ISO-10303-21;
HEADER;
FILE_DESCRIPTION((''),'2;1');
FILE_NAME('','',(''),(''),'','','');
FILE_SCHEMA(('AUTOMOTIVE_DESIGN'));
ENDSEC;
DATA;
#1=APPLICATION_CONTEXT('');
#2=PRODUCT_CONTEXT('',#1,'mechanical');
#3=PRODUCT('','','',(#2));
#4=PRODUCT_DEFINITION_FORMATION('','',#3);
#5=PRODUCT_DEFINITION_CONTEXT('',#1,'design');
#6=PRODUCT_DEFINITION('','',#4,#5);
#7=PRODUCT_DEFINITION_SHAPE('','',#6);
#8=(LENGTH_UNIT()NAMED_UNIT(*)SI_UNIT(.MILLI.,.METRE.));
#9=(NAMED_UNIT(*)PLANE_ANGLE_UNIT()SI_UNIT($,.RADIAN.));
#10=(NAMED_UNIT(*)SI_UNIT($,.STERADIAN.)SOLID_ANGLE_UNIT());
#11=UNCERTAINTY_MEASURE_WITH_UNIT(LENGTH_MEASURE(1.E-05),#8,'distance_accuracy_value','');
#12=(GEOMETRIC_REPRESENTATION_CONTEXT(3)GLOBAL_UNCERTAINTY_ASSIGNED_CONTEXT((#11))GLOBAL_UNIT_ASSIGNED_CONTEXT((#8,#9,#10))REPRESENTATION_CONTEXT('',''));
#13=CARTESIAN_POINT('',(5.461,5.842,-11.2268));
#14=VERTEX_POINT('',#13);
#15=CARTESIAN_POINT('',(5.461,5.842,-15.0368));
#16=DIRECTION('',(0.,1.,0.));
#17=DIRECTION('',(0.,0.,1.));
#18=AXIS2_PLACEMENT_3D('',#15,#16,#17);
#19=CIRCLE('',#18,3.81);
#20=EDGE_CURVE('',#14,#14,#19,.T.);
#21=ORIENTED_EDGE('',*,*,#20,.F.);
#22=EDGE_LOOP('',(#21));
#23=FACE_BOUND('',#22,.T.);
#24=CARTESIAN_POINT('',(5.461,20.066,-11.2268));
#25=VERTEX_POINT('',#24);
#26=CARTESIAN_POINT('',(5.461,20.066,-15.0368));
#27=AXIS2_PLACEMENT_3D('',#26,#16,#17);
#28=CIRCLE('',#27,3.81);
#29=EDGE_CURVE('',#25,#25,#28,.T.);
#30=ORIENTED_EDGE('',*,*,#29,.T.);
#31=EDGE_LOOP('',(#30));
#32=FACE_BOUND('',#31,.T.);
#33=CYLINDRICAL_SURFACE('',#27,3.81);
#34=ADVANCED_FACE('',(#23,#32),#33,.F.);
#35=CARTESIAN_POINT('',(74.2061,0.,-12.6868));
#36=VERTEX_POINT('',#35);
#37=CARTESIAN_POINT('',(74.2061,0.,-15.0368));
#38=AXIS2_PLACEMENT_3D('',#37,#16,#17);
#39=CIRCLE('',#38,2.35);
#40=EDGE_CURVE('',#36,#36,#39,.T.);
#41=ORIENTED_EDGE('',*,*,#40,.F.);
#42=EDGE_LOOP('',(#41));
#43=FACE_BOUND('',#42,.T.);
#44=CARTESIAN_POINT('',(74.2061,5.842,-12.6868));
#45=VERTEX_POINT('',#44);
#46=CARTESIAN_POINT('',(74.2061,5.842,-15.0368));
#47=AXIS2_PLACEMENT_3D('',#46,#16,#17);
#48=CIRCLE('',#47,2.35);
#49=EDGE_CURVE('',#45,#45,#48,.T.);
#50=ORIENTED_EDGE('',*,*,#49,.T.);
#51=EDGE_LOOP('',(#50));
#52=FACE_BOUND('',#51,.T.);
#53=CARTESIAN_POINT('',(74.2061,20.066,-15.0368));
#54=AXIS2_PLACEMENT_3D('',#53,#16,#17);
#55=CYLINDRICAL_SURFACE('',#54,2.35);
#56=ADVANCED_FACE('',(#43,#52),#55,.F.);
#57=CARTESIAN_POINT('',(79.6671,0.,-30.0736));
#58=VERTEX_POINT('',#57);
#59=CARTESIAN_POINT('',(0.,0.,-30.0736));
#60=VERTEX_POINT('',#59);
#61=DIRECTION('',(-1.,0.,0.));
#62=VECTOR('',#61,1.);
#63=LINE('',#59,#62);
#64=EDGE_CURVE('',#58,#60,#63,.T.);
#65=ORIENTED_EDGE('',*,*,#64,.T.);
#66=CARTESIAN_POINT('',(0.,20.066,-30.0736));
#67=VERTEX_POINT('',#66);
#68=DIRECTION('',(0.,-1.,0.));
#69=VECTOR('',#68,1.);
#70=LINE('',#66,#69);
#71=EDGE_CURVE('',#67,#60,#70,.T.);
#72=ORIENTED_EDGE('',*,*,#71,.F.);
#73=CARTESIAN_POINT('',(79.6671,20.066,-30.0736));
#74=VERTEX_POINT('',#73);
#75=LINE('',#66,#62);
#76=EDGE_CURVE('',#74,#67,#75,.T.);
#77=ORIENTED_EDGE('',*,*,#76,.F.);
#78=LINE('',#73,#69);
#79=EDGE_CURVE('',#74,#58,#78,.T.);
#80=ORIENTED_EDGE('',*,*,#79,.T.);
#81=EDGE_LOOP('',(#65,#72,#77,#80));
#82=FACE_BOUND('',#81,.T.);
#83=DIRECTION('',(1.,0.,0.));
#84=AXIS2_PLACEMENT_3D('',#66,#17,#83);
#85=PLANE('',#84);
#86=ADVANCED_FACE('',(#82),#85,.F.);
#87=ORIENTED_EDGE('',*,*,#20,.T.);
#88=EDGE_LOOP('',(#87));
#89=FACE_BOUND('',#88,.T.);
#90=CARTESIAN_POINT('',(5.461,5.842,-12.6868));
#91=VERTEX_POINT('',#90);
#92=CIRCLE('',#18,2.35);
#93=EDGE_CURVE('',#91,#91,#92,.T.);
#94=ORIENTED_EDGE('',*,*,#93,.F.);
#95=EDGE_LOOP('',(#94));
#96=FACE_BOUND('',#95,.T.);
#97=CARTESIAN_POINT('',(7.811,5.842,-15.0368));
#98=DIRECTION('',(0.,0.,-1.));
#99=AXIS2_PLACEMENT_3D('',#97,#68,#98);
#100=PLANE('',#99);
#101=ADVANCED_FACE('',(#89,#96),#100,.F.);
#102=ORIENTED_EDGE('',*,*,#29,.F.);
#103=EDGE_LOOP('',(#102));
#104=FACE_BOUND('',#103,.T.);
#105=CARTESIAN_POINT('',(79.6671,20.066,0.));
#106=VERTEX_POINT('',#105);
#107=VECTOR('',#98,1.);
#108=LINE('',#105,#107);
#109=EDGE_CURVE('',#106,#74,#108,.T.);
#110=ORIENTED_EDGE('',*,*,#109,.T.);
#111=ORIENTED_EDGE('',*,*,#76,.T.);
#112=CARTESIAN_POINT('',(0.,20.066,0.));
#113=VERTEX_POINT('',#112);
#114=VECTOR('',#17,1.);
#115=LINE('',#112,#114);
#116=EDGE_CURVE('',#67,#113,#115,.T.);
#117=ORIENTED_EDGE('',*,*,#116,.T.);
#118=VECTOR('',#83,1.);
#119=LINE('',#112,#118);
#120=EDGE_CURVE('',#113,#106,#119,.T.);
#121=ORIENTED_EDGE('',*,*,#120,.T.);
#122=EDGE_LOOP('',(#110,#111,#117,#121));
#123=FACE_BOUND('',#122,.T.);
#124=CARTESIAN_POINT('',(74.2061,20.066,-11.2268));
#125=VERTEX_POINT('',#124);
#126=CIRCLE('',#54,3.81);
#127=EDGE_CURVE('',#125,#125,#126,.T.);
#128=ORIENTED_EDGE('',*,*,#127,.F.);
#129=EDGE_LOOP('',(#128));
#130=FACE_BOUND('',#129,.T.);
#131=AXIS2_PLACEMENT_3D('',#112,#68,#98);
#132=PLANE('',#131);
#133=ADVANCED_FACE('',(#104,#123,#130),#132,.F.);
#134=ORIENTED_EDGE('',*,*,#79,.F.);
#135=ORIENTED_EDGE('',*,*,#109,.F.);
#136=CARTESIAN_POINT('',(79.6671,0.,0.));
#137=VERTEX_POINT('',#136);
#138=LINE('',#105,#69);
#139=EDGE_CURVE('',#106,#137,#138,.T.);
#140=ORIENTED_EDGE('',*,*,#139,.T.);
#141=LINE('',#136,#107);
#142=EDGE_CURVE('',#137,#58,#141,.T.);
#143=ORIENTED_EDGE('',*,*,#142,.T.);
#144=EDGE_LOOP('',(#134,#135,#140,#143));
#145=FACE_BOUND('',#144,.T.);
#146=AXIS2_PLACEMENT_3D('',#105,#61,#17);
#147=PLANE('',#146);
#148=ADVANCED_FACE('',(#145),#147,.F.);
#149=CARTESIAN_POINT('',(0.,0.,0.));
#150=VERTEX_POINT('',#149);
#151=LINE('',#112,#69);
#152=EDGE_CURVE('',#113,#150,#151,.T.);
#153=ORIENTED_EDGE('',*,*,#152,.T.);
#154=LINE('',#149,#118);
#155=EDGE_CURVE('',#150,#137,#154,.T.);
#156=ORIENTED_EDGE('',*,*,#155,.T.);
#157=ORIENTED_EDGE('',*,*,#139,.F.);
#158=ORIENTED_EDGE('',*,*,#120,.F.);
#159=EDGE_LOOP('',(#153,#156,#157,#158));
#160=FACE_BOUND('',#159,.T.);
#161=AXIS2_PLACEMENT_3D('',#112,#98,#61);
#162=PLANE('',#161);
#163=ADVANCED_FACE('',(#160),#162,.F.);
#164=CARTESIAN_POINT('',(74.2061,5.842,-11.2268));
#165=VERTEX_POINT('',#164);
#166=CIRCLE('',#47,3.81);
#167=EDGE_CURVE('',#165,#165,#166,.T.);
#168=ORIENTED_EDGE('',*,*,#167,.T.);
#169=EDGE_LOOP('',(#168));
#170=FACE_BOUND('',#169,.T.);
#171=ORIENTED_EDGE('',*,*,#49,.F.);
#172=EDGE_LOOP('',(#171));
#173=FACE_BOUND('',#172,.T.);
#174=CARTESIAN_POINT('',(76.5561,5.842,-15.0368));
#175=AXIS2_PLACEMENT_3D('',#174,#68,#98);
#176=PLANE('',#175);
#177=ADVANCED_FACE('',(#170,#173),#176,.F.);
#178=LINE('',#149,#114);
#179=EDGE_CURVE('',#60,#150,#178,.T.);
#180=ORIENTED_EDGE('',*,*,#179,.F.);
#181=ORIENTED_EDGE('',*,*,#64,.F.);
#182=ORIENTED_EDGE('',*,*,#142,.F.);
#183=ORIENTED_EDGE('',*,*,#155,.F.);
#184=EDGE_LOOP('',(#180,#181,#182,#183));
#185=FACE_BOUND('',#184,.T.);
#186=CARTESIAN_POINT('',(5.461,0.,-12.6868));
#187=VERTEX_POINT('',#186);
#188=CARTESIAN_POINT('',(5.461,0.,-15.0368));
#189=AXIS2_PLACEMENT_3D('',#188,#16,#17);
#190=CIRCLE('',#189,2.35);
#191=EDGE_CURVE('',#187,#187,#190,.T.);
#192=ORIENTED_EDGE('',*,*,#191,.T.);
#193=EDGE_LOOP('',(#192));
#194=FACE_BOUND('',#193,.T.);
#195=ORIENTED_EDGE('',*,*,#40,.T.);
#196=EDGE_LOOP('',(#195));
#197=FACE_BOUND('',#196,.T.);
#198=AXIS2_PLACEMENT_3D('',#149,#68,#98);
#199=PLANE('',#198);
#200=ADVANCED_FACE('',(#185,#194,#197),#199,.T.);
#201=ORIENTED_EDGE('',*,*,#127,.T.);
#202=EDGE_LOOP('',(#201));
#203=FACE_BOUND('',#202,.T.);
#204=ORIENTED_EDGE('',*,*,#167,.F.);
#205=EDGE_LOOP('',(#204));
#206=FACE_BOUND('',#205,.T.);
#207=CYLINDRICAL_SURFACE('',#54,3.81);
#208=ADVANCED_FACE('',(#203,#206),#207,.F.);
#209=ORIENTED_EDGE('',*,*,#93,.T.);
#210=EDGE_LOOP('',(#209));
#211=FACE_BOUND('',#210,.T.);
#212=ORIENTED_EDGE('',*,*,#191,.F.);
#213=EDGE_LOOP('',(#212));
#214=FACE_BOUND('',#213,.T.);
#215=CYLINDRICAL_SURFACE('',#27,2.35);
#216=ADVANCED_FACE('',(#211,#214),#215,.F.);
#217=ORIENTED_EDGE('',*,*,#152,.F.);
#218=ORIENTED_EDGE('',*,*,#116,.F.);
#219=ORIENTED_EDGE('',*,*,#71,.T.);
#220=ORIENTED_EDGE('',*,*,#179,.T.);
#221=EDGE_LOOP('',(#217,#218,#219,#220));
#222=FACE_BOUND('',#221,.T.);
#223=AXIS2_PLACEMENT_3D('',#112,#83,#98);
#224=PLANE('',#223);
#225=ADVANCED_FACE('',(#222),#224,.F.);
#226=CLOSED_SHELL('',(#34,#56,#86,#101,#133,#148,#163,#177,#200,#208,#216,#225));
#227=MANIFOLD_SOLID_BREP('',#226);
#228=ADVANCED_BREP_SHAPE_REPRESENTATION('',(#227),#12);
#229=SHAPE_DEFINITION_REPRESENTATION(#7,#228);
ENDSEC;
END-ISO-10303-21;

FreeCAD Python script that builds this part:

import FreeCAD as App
import Part
import Sketcher
Q = App.Units.Quantity

doc = App.newDocument("Part")
body = doc.addObject("PartDesign::Body", "Body")

sketch1 = body.newObject("Sketcher::SketchObject", "Sketch")
sketch1.AttachmentSupport = (doc.getObject("XZ_Plane"), [""])
sketch1.MapMode = "FlatFace"
sketch1.addGeometry([
    Part.LineSegment(App.Vector(0, -30, 0), App.Vector(0, 0, 0)),
    Part.LineSegment(App.Vector(0, 0, 0), App.Vector(80, 0, 0)),
    Part.LineSegment(App.Vector(80, 0, 0), App.Vector(80, -30, 0)),
    Part.LineSegment(App.Vector(80, -30, 0), App.Vector(0, -30, 0)),
], False)
sketch1.addConstraint([
    Sketcher.Constraint("Coincident", 0, 2, 1, 1),
    Sketcher.Constraint("Coincident", 1, 2, 2, 1),
    Sketcher.Constraint("Coincident", 2, 2, 3, 1),
    Sketcher.Constraint("Coincident", 3, 2, 0, 1),
    Sketcher.Constraint("Vertical", 0),
    Sketcher.Constraint("Horizontal", 1),
    Sketcher.Constraint("Vertical", 2),
    Sketcher.Constraint("Horizontal", 3),
    Sketcher.Constraint("Coincident", 0, 2, -1, 1),
    Sketcher.Constraint("DistanceY", 0, 1, 0, 2, Q("1.184 in")),
    Sketcher.Constraint("DistanceX", 1, 1, 1, 2, Q("3.1365 in")),
])
pad1 = body.newObject("PartDesign::Pad", "Pad")
pad1.Profile = sketch1
pad1.Length = Q("0.79 in")
pad1.Reversed = True

sketch2 = body.newObject("Sketcher::SketchObject", "Sketch001")
sketch2.AttachmentSupport = (doc.getObject("XZ_Plane"), [""])
sketch2.MapMode = "FlatFace"
sketch2.AttachmentOffset = App.Placement(App.Vector(0, 0, -0.79 * 25.4), App.Rotation())
sketch2.addGeometry([
    Part.Circle(App.Vector(5.5, -15, 0), App.Vector(0, 0, 1), 2.3),
    Part.Circle(App.Vector(74.2, -15, 0), App.Vector(0, 0, 1), 2.3),
], False)
sketch2.addConstraint([
    Sketcher.Constraint("Equal", 0, 1),
    Sketcher.Constraint("Horizontal", 0, 3, 1, 3),
    Sketcher.Constraint("Diameter", 0, Q("4.7 mm")),
    Sketcher.Constraint("DistanceX", -1, 1, 0, 3, Q("0.215 in")),
    Sketcher.Constraint("DistanceY", 0, 3, -1, 1, Q("0.592 in")),
    Sketcher.Constraint("DistanceX", -1, 1, 1, 3, Q("2.9215 in")),
])
doc.recompute()
hole = body.newObject("PartDesign::Hole", "Hole")
hole.Profile = sketch2
hole.ThreadType = "None"
hole.Diameter = 4.7
hole.DepthType = "ThroughAll"
hole.HoleCutType = "Counterbore"
hole.HoleCutDiameter = Q("0.3 in")
hole.HoleCutDepth = Q("0.56 in")
hole.Reversed = True

doc.recompute()
